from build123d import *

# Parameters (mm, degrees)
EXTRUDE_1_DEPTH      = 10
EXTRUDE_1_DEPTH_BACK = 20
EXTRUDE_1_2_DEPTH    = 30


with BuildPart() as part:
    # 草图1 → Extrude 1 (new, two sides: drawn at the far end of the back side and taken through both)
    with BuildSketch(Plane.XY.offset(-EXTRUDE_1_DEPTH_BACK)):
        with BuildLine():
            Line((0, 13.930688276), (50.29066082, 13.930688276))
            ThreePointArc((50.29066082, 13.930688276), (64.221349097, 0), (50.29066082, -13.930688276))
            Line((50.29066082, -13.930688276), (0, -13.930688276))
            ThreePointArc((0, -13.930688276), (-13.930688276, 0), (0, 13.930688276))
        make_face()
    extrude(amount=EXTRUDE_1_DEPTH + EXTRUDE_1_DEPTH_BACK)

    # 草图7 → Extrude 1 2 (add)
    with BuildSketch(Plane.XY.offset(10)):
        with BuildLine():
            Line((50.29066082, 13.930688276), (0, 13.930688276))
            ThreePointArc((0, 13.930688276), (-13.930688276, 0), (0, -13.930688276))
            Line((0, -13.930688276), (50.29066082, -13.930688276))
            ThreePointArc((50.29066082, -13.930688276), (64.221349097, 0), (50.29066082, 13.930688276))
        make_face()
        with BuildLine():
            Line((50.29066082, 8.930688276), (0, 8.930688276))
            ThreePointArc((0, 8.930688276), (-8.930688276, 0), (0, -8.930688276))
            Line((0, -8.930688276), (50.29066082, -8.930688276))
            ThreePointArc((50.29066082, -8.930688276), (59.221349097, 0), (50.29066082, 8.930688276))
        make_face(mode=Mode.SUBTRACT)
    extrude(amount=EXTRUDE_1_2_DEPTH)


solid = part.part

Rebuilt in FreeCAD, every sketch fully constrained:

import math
import FreeCAD as App
import Part
import Sketcher
from FreeCAD import Vector
Q = App.Units.Quantity

doc = App.newDocument("Part")
body = doc.addObject("PartDesign::Body", "Body")

sketch1 = body.newObject("Sketcher::SketchObject", "Sketch")
sketch1.AttachmentSupport = (doc.getObject("XY_Plane"), [""])
sketch1.MapMode = "FlatFace"
sketch1.addGeometry([
    Part.LineSegment(Vector(50, 14, 0), Vector(0, 14, 0)),
    Part.ArcOfCircle(Part.Circle(Vector(0, 0, 0), Vector(0, 0, 1), 14), math.radians(90), math.radians(270)),
    Part.LineSegment(Vector(0, -14, 0), Vector(50, -14, 0)),
    Part.ArcOfCircle(Part.Circle(Vector(50, 0, 0), Vector(0, 0, 1), 14), math.radians(-90), math.radians(90)),
], False)
sketch1.addConstraint([
    Sketcher.Constraint("Tangent", 0, 2, 1, 1),
    Sketcher.Constraint("Tangent", 1, 2, 2, 1),
    Sketcher.Constraint("Tangent", 2, 2, 3, 1),
    Sketcher.Constraint("Tangent", 3, 2, 0, 1),
    Sketcher.Constraint("Horizontal", 0),
    Sketcher.Constraint("Horizontal", 2),
    Sketcher.Constraint("Coincident", 1, 3, -1, 1),
    Sketcher.Constraint("Radius", 1, Q("13.930688 mm")),
    Sketcher.Constraint("DistanceX", 0, 2, 0, 1, Q("50.290661 mm")),
])
pad1 = body.newObject("PartDesign::Pad", "Pad")
pad1.Profile = sketch1
pad1.Type = "TwoLengths"
pad1.Length = 10
pad1.Length2 = 20

sketch2 = body.newObject("Sketcher::SketchObject", "Sketch001")
sketch2.AttachmentSupport = (doc.getObject("XY_Plane"), [""])
sketch2.MapMode = "FlatFace"
sketch2.AttachmentOffset = App.Placement(Vector(0, 0, 10), App.Rotation())
sketch2.addGeometry([
    Part.LineSegment(Vector(50, 14, 0), Vector(0, 14, 0)),
    Part.ArcOfCircle(Part.Circle(Vector(0, 0, 0), Vector(0, 0, 1), 14), math.radians(90), math.radians(270)),
    Part.LineSegment(Vector(0, -14, 0), Vector(50, -14, 0)),
    Part.ArcOfCircle(Part.Circle(Vector(50, 0, 0), Vector(0, 0, 1), 14), math.radians(-90), math.radians(90)),
    Part.LineSegment(Vector(0, 9, 0), Vector(50, 9, 0)),
    Part.ArcOfCircle(Part.Circle(Vector(50, 0, 0), Vector(0, 0, 1), 9), math.radians(-90), math.radians(90)),
    Part.LineSegment(Vector(50, -9, 0), Vector(0, -9, 0)),
    Part.ArcOfCircle(Part.Circle(Vector(0, 0, 0), Vector(0, 0, 1), 9), math.radians(90), math.radians(270)),
], False)
sketch2.addConstraint([
    Sketcher.Constraint("Tangent", 0, 2, 1, 1),
    Sketcher.Constraint("Tangent", 1, 2, 2, 1),
    Sketcher.Constraint("Tangent", 2, 2, 3, 1),
    Sketcher.Constraint("Tangent", 3, 2, 0, 1),
    Sketcher.Constraint("Tangent", 4, 2, 5, 2),
    Sketcher.Constraint("Tangent", 5, 1, 6, 1),
    Sketcher.Constraint("Tangent", 6, 2, 7, 2),
    Sketcher.Constraint("Tangent", 7, 1, 4, 1),
    Sketcher.Constraint("Horizontal", 0),
    Sketcher.Constraint("Horizontal", 2),
    Sketcher.Constraint("Horizontal", 4),
    Sketcher.Constraint("Horizontal", 6),
    Sketcher.Constraint("Coincident", 1, 3, -1, 1),
    Sketcher.Constraint("Coincident", 7, 3, -1, 1),
    Sketcher.Constraint("Vertical", 5, 3, 2, 2),
    Sketcher.Constraint("DistanceY", 4, 2, 3, 2, Q("5 mm")),
    Sketcher.Constraint("Radius", 1, Q("13.930688 mm")),
    Sketcher.Constraint("DistanceX", 0, 2, 0, 1, Q("50.290661 mm")),
])
pad2 = body.newObject("PartDesign::Pad", "Pad001")
pad2.Profile = sketch2
pad2.Length = 30

doc.recompute()
